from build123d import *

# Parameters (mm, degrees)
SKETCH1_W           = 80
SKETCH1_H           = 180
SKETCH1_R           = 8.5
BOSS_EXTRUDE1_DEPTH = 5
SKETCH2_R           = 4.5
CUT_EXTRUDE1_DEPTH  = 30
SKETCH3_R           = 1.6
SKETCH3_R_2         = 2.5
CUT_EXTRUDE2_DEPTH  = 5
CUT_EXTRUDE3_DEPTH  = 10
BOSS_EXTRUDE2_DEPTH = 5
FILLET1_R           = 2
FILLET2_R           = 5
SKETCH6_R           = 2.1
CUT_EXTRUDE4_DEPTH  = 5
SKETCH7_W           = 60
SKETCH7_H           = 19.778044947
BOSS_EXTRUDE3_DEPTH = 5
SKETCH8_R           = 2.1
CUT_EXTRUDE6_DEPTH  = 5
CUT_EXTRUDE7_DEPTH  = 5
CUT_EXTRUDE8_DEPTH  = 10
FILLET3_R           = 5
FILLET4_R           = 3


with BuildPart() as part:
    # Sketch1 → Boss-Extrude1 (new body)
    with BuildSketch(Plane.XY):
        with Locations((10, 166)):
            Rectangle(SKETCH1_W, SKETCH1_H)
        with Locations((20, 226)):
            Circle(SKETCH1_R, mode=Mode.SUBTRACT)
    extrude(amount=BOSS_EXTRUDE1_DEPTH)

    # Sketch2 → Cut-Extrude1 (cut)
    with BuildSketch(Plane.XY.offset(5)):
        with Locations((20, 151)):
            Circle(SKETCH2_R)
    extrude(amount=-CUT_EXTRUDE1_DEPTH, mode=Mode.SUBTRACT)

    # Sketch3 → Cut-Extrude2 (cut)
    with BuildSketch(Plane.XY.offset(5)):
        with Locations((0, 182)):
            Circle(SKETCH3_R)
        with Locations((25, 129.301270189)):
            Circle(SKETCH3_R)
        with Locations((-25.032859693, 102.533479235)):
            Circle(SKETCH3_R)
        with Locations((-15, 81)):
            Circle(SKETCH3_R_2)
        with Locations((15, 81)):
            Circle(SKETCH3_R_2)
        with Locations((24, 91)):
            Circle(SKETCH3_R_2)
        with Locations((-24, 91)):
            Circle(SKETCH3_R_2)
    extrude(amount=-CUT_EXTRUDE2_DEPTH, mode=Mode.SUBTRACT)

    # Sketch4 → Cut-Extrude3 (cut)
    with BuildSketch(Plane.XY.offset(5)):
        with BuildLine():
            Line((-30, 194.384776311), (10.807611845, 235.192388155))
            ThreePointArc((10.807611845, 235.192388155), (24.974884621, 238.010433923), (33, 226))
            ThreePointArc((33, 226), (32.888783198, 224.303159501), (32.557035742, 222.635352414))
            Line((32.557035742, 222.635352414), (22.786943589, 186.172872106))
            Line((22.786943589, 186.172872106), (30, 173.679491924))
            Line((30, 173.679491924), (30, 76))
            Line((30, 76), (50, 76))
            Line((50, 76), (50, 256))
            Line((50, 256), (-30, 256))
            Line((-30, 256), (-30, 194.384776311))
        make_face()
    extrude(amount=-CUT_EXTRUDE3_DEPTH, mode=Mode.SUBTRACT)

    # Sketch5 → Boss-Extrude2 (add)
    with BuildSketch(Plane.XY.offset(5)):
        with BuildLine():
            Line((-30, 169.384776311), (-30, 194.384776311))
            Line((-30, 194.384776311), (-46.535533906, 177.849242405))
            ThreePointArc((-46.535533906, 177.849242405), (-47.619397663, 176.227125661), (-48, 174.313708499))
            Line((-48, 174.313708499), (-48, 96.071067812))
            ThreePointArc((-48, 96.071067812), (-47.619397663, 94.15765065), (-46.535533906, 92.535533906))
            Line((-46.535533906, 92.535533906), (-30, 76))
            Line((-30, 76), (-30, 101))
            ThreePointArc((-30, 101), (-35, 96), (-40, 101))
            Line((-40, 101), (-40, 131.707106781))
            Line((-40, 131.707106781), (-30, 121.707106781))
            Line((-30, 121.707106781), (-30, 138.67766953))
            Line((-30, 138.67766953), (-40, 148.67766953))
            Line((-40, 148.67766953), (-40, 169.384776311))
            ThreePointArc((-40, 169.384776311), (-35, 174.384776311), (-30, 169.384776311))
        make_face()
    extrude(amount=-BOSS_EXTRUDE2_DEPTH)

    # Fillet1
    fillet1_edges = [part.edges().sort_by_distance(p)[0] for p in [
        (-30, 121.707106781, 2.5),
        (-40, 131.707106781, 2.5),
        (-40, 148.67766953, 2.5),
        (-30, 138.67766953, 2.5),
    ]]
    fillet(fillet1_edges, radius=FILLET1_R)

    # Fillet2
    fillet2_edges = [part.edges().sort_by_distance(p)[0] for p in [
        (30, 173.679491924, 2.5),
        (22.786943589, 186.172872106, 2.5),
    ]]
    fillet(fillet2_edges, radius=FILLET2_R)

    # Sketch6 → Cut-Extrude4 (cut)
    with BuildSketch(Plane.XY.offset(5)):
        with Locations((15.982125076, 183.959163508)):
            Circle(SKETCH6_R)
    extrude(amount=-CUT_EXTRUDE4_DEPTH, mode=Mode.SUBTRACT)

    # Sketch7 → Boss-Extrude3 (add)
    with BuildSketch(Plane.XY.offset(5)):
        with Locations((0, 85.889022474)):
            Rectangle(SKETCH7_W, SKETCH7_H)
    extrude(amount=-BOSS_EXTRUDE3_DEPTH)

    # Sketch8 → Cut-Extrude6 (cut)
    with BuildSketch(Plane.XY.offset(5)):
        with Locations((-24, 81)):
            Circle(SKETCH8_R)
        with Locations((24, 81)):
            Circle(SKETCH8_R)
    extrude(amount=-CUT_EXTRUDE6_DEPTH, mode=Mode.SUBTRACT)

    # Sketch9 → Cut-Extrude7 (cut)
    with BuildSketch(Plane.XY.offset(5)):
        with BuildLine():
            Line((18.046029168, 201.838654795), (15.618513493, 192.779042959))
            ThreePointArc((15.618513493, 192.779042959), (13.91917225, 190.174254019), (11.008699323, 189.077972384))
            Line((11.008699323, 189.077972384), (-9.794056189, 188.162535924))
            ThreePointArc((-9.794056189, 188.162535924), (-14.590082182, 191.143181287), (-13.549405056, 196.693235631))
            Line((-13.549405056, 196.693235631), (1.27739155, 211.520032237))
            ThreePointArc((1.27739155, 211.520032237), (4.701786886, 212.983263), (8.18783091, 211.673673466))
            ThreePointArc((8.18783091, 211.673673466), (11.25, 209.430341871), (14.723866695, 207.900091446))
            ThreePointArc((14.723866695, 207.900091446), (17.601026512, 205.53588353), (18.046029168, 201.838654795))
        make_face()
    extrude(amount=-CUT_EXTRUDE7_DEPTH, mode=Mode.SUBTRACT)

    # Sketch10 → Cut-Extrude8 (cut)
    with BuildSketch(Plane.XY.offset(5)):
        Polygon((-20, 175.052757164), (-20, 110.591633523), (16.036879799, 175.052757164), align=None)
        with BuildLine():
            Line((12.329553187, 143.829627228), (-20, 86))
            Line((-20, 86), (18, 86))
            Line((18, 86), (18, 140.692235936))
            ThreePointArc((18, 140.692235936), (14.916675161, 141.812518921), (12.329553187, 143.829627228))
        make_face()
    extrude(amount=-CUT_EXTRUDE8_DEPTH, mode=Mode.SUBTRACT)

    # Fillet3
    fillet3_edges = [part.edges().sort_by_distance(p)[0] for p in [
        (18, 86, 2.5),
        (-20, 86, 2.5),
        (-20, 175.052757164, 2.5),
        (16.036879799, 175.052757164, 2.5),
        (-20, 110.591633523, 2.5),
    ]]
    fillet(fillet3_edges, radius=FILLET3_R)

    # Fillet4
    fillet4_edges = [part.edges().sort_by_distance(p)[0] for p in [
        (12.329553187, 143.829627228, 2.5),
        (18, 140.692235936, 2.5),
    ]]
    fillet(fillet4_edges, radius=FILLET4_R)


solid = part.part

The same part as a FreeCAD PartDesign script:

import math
import FreeCAD as App
import Part
import Sketcher

V = App.Vector
Q = App.Units.Quantity


def edges_at(feature, points):
    """Names of the edges that pass closest to the given points."""
    edges = feature.Shape.Edges
    near = lambda p: min(range(len(edges)), key=lambda i: edges[i].distToShape(Part.Vertex(*p))[0])
    return sorted({f"Edge{near(p) + 1}" for p in points})

doc = App.newDocument("Part")
params = doc.addObject("Spreadsheet::Sheet", "Params")
for row, (alias, value) in enumerate([
    ("sketch1_diameter", "17 mm"),
    ("sketch1_width", "80 mm"),
    ("sketch1_height", "180 mm"),
    ("pad1_length", "5 mm"),
    ("sketch2_diameter", "9 mm"),
    ("pocket1_length", "30 mm"),
    ("sketch3_diameter", "5 mm"),
    ("sketch3_diameter2", "3.2 mm"),
    ("pocket2_length", "5 mm"),
    ("sketch4_radius", "13 mm"),
    ("sketch4_width", "20 mm"),
    ("sketch4_width2", "80 mm"),
    ("sketch4_height", "180 mm"),
    ("pocket3_length", "10 mm"),
    ("sketch5_radius", "5 mm"),
    ("sketch5_height", "25 mm"),
    ("pad2_length", "5 mm"),
    ("fillet_radius", "2 mm"),
    ("fillet2_radius", "5 mm"),
    ("sketch6_diameter", "4.2 mm"),
    ("pocket4_length", "5 mm"),
    ("sketch7_width", "60 mm"),
    ("pad3_length", "5 mm"),
    ("sketch8_diameter", "4.2 mm"),
    ("pocket5_length", "5 mm"),
    ("sketch9_radius", "5 mm"),
    ("sketch9_radius2", "17.5 mm"),
    ("pocket6_length", "5 mm"),
    ("sketch10_radius", "10.5 mm"),
    ("sketch10_width", "38 mm"),
    ("pocket7_length", "10 mm"),
    ("fillet3_radius", "5 mm"),
    ("fillet4_radius", "3 mm"),
], start=1):
    params.set(f"A{row}", alias)
    params.set(f"B{row}", "=" + value)
    params.setAlias(f"B{row}", alias)

body = doc.addObject("PartDesign::Body", "Body")

# Sketch on XY plane
sketch1 = doc.addObject("Sketcher::SketchObject", "Sketch")
body.addObject(sketch1)
sketch1.AttachmentSupport = (doc.XY_Plane, [""])
sketch1.MapMode = "FlatFace"
sketch1.addGeometry(Part.LineSegment(V(-30, 256, 0), V(-30, 76, 0)), False)
sketch1.addGeometry(Part.LineSegment(V(-30, 76, 0), V(50, 76, 0)), False)
sketch1.addGeometry(Part.LineSegment(V(50, 76, 0), V(50, 256, 0)), False)
sketch1.addGeometry(Part.LineSegment(V(50, 256, 0), V(-30, 256, 0)), False)
sketch1.addGeometry(Part.Circle(V(20, 226, 0), V(0, 0, 1), 8), False)
sketch1.addConstraint(Sketcher.Constraint("Coincident", 0, 2, 1, 1))
sketch1.addConstraint(Sketcher.Constraint("Coincident", 1, 2, 2, 1))
sketch1.addConstraint(Sketcher.Constraint("Coincident", 2, 2, 3, 1))
sketch1.addConstraint(Sketcher.Constraint("Coincident", 3, 2, 0, 1))
sketch1.addConstraint(Sketcher.Constraint("Vertical", 0))
sketch1.addConstraint(Sketcher.Constraint("Horizontal", 1))
sketch1.addConstraint(Sketcher.Constraint("Vertical", 2))
sketch1.addConstraint(Sketcher.Constraint("Horizontal", 3))
sketch1.addConstraint(Sketcher.Constraint("Diameter", 4, 17.0))
sketch1.addConstraint(Sketcher.Constraint("DistanceX", 1, 1, 1, 2, 80.0))
sketch1.addConstraint(Sketcher.Constraint("DistanceY", 0, 2, 0, 1, 180.0))
sketch1.addConstraint(Sketcher.Constraint("DistanceX", -1, 1, 4, 3, 20.0))
sketch1.addConstraint(Sketcher.Constraint("DistanceY", -1, 1, 4, 3, 226.0))
sketch1.addConstraint(Sketcher.Constraint("DistanceX", 0, 2, -1, 1, 30.0))
sketch1.addConstraint(Sketcher.Constraint("DistanceY", -1, 1, 0, 2, 76.0))
sketch1.setExpression("Constraints[8]", "Params.sketch1_diameter")
sketch1.setExpression("Constraints[9]", "Params.sketch1_width")
sketch1.setExpression("Constraints[10]", "Params.sketch1_height")
pad1 = doc.addObject("PartDesign::Pad", "Pad")
body.addObject(pad1)
pad1.Profile = sketch1
pad1.setExpression("Length", "Params.pad1_length")

# Sketch on XY plane
sketch2 = doc.addObject("Sketcher::SketchObject", "Sketch001")
body.addObject(sketch2)
sketch2.AttachmentSupport = (doc.XY_Plane, [""])
sketch2.MapMode = "FlatFace"
sketch2.AttachmentOffset = App.Placement(V(0, 0, 5), App.Rotation())
sketch2.addGeometry(Part.Circle(V(20, 151, 0), V(0, 0, 1), 4.5), False)
sketch2.addConstraint(Sketcher.Constraint("Diameter", 0, 9.0))
sketch2.addConstraint(Sketcher.Constraint("DistanceX", -1, 1, 0, 3, 20.0))
sketch2.addConstraint(Sketcher.Constraint("DistanceY", -1, 1, 0, 3, 151.0))
sketch2.setExpression("Constraints[0]", "Params.sketch2_diameter")
pocket1 = doc.addObject("PartDesign::Pocket", "Pocket")
body.addObject(pocket1)
pocket1.Profile = sketch2
pocket1.setExpression("Length", "Params.pocket1_length")

# Sketch on XY plane
sketch3 = doc.addObject("Sketcher::SketchObject", "Sketch002")
body.addObject(sketch3)
sketch3.AttachmentSupport = (doc.XY_Plane, [""])
sketch3.MapMode = "FlatFace"
sketch3.AttachmentOffset = App.Placement(V(0, 0, 5), App.Rotation())
sketch3.addGeometry(Part.Circle(V(0, 182, 0), V(0, 0, 1), 1.6), False)
sketch3.addGeometry(Part.Circle(V(25, 129.3, 0), V(0, 0, 1), 1.6), False)
sketch3.addGeometry(Part.Circle(V(-25, 102.5, 0), V(0, 0, 1), 1.6), False)
sketch3.addGeometry(Part.Circle(V(-15, 81, 0), V(0, 0, 1), 2.5), False)
sketch3.addGeometry(Part.Circle(V(15, 81, 0), V(0, 0, 1), 2.5), False)
sketch3.addGeometry(Part.Circle(V(24, 91, 0), V(0, 0, 1), 2.5), False)
sketch3.addGeometry(Part.Circle(V(-24, 91, 0), V(0, 0, 1), 2.5), False)
sketch3.addConstraint(Sketcher.Constraint("Equal", 0, 1))
sketch3.addConstraint(Sketcher.Constraint("Equal", 1, 2))
sketch3.addConstraint(Sketcher.Constraint("Equal", 3, 4))
sketch3.addConstraint(Sketcher.Constraint("Equal", 4, 5))
sketch3.addConstraint(Sketcher.Constraint("Equal", 5, 6))
sketch3.addConstraint(Sketcher.Constraint("Symmetric", 3, 3, 4, 3, -2))
sketch3.addConstraint(Sketcher.Constraint("Symmetric", 5, 3, 6, 3, -2))
sketch3.addConstraint(Sketcher.Constraint("PointOnObject", 0, 3, -2))
sketch3.addConstraint(Sketcher.Constraint("Diameter", 3, 5.0))
sketch3.addConstraint(Sketcher.Constraint("Diameter", 0, 3.2))
sketch3.addConstraint(Sketcher.Constraint("DistanceY", -1, 1, 0, 3, 182.0))
sketch3.addConstraint(Sketcher.Constraint("DistanceX", -1, 1, 1, 3, 25.0))
sketch3.addConstraint(Sketcher.Constraint("DistanceX", 3, 3, -1, 1, 15.0))
sketch3.addConstraint(Sketcher.Constraint("DistanceY", -1, 1, 3, 3, 81.0))
sketch3.addConstraint(Sketcher.Constraint("DistanceX", -1, 1, 5, 3, 24.0))
sketch3.addConstraint(Sketcher.Constraint("DistanceY", -1, 1, 5, 3, 91.0))
sketch3.addConstraint(Sketcher.Constraint("DistanceY", -1, 1, 1, 3, 129.30127))
sketch3.addConstraint(Sketcher.Constraint("DistanceX", 2, 3, -1, 1, 25.03286))
sketch3.addConstraint(Sketcher.Constraint("DistanceY", -1, 1, 2, 3, 102.533479))
sketch3.setExpression("Constraints[8]", "Params.sketch3_diameter")
sketch3.setExpression("Constraints[9]", "Params.sketch3_diameter2")
pocket2 = doc.addObject("PartDesign::Pocket", "Pocket001")
body.addObject(pocket2)
pocket2.Profile = sketch3
pocket2.setExpression("Length", "Params.pocket2_length")

# Sketch on XY plane
sketch4 = doc.addObject("Sketcher::SketchObject", "Sketch003")
body.addObject(sketch4)
sketch4.AttachmentSupport = (doc.XY_Plane, [""])
sketch4.MapMode = "FlatFace"
sketch4.AttachmentOffset = App.Placement(V(0, 0, 5), App.Rotation())
sketch4.addGeometry(Part.LineSegment(V(-30, 194.4, 0), V(10.8, 235.2, 0)), False)
sketch4.addGeometry(Part.ArcOfCircle(Part.Circle(V(20, 226, 0), V(0, 0, 1), 13), math.radians(0), math.radians(135)), False)
sketch4.addGeometry(Part.ArcOfCircle(Part.Circle(V(20, 226, 0), V(0, 0, 1), 13), math.radians(-15), math.radians(0)), False)
sketch4.addGeometry(Part.LineSegment(V(32.6, 222.6, 0), V(22.8, 186.2, 0)), False)
sketch4.addGeometry(Part.LineSegment(V(22.8, 186.2, 0), V(30, 173.7, 0)), False)
sketch4.addGeometry(Part.LineSegment(V(30, 173.7, 0), V(30, 76, 0)), False)
sketch4.addGeometry(Part.LineSegment(V(30, 76, 0), V(50, 76, 0)), False)
sketch4.addGeometry(Part.LineSegment(V(50, 76, 0), V(50, 256, 0)), False)
sketch4.addGeometry(Part.LineSegment(V(50, 256, 0), V(-30, 256, 0)), False)
sketch4.addGeometry(Part.LineSegment(V(-30, 256, 0), V(-30, 194.4, 0)), False)
sketch4.addConstraint(Sketcher.Constraint("Tangent", 0, 2, 1, 2))
sketch4.addConstraint(Sketcher.Constraint("Tangent", 1, 1, 2, 2))
sketch4.addConstraint(Sketcher.Constraint("Tangent", 2, 1, 3, 1))
sketch4.addConstraint(Sketcher.Constraint("Coincident", 3, 2, 4, 1))
sketch4.addConstraint(Sketcher.Constraint("Coincident", 4, 2, 5, 1))
sketch4.addConstraint(Sketcher.Constraint("Coincident", 5, 2, 6, 1))
sketch4.addConstraint(Sketcher.Constraint("Coincident", 6, 2, 7, 1))
sketch4.addConstraint(Sketcher.Constraint("Coincident", 7, 2, 8, 1))
sketch4.addConstraint(Sketcher.Constraint("Coincident", 8, 2, 9, 1))
sketch4.addConstraint(Sketcher.Constraint("Coincident", 9, 2, 0, 1))
sketch4.addConstraint(Sketcher.Constraint("Vertical", 5))
sketch4.addConstraint(Sketcher.Constraint("Horizontal", 6))
sketch4.addConstraint(Sketcher.Constraint("Vertical", 7))
sketch4.addConstraint(Sketcher.Constraint("Horizontal", 8))
sketch4.addConstraint(Sketcher.Constraint("Vertical", 9))
sketch4.addConstraint(Sketcher.Constraint("Equal", 1, 2))
sketch4.addConstraint(Sketcher.Constraint("Horizontal", 2, 3, 1, 1))
sketch4.addConstraint(Sketcher.Constraint("Radius", 1, 13.0))
sketch4.addConstraint(Sketcher.Constraint("DistanceX", 6, 1, 6, 2, 20.0))
sketch4.addConstraint(Sketcher.Constraint("DistanceX", 8, 2, 8, 1, 80.0))
sketch4.addConstraint(Sketcher.Constraint("DistanceY", 7, 1, 7, 2, 180.0))
sketch4.addConstraint(Sketcher.Constraint("Angle", 0, Q("45 deg")))
sketch4.addConstraint(Sketcher.Constraint("Angle", 3, Q("-105 deg")))
sketch4.addConstraint(Sketcher.Constraint("Angle", 4, Q("-60 deg")))
sketch4.addConstraint(Sketcher.Constraint("DistanceX", -1, 1, 1, 3, 20.0))
sketch4.addConstraint(Sketcher.Constraint("DistanceY", -1, 1, 1, 3, 226.0))
sketch4.addConstraint(Sketcher.Constraint("DistanceX", -1, 1, 4, 2, 30.0))
sketch4.addConstraint(Sketcher.Constraint("DistanceY", -1, 1, 5, 2, 76.0))
sketch4.addConstraint(Sketcher.Constraint("DistanceY", 5, 2, 5, 1, 97.679492))
sketch4.setExpression("Constraints[17]", "Params.sketch4_radius")
sketch4.setExpression("Constraints[18]", "Params.sketch4_width")
sketch4.setExpression("Constraints[19]", "Params.sketch4_width2")
sketch4.setExpression("Constraints[20]", "Params.sketch4_height")
pocket3 = doc.addObject("PartDesign::Pocket", "Pocket002")
body.addObject(pocket3)
pocket3.Profile = sketch4
pocket3.setExpression("Length", "Params.pocket3_length")

# Sketch on XY plane
sketch5 = doc.addObject("Sketcher::SketchObject", "Sketch004")
body.addObject(sketch5)
sketch5.AttachmentSupport = (doc.XY_Plane, [""])
sketch5.MapMode = "FlatFace"
sketch5.AttachmentOffset = App.Placement(V(0, 0, 5), App.Rotation())
sketch5.addGeometry(Part.LineSegment(V(-30, 169.4, 0), V(-30, 194.4, 0)), False)
sketch5.addGeometry(Part.LineSegment(V(-30, 194.4, 0), V(-46.5, 177.8, 0)), False)
sketch5.addGeometry(Part.ArcOfCircle(Part.Circle(V(-43, 174.3, 0), V(0, 0, 1), 5), math.radians(135), math.radians(180)), False)
sketch5.addGeometry(Part.LineSegment(V(-48, 174.3, 0), V(-48, 96.1, 0)), False)
sketch5.addGeometry(Part.ArcOfCircle(Part.Circle(V(-43, 96.1, 0), V(0, 0, 1), 5), math.radians(180), math.radians(225)), False)
sketch5.addGeometry(Part.LineSegment(V(-46.5, 92.5, 0), V(-30, 76, 0)), False)
sketch5.addGeometry(Part.LineSegment(V(-30, 76, 0), V(-30, 101, 0)), False)
sketch5.addGeometry(Part.ArcOfCircle(Part.Circle(V(-35, 101, 0), V(0, 0, 1), 5), math.radians(180), math.radians(360)), False)
sketch5.addGeometry(Part.LineSegment(V(-40, 101, 0), V(-40, 131.7, 0)), False)
sketch5.addGeometry(Part.LineSegment(V(-40, 131.7, 0), V(-30, 121.7, 0)), False)
sketch5.addGeometry(Part.LineSegment(V(-30, 121.7, 0), V(-30, 138.7, 0)), False)
sketch5.addGeometry(Part.LineSegment(V(-30, 138.7, 0), V(-40, 148.7, 0)), False)
sketch5.addGeometry(Part.LineSegment(V(-40, 148.7, 0), V(-40, 169.4, 0)), False)
sketch5.addGeometry(Part.ArcOfCircle(Part.Circle(V(-35, 169.4, 0), V(0, 0, 1), 5), math.radians(0), math.radians(180)), False)
sketch5.addConstraint(Sketcher.Constraint("Coincident", 0, 2, 1, 1))
sketch5.addConstraint(Sketcher.Constraint("Tangent", 1, 2, 2, 1))
sketch5.addConstraint(Sketcher.Constraint("Tangent", 2, 2, 3, 1))
sketch5.addConstraint(Sketcher.Constraint("Tangent", 3, 2, 4, 1))
sketch5.addConstraint(Sketcher.Constraint("Tangent", 4, 2, 5, 1))
sketch5.addConstraint(Sketcher.Constraint("Coincident", 5, 2, 6, 1))
sketch5.addConstraint(Sketcher.Constraint("Tangent", 6, 2, 7, 2))
sketch5.addConstraint(Sketcher.Constraint("Tangent", 7, 1, 8, 1))
sketch5.addConstraint(Sketcher.Constraint("Coincident", 8, 2, 9, 1))
sketch5.addConstraint(Sketcher.Constraint("Coincident", 9, 2, 10, 1))
sketch5.addConstraint(Sketcher.Constraint("Coincident", 10, 2, 11, 1))
sketch5.addConstraint(Sketcher.Constraint("Coincident", 11, 2, 12, 1))
sketch5.addConstraint(Sketcher.Constraint("Tangent", 12, 2, 13, 2))
sketch5.addConstraint(Sketcher.Constraint("Tangent", 13, 1, 0, 1))
sketch5.addConstraint(Sketcher.Constraint("Vertical", 0))
sketch5.addConstraint(Sketcher.Constraint("Vertical", 3))
sketch5.addConstraint(Sketcher.Constraint("Vertical", 6))
sketch5.addConstraint(Sketcher.Constraint("Vertical", 8))
sketch5.addConstraint(Sketcher.Constraint("Vertical", 10))
sketch5.addConstraint(Sketcher.Constraint("Vertical", 12))
sketch5.addConstraint(Sketcher.Constraint("Equal", 2, 4))
sketch5.addConstraint(Sketcher.Constraint("Equal", 4, 7))
sketch5.addConstraint(Sketcher.Constraint("Equal", 7, 13))
sketch5.addConstraint(Sketcher.Constraint("Perpendicular", 1, 5))
sketch5.addConstraint(Sketcher.Constraint("Parallel", 5, 9))
sketch5.addConstraint(Sketcher.Constraint("Parallel", 9, 11))
sketch5.addConstraint(Sketcher.Constraint("Vertical", 7, 3, 13, 3))
sketch5.addConstraint(Sketcher.Constraint("Vertical", 1, 2, 4, 2))
sketch5.addConstraint(Sketcher.Constraint("Vertical", 6, 2, 9, 2))
sketch5.addConstraint(Sketcher.Constraint("Equal", 0, 6))
sketch5.addConstraint(Sketcher.Constraint("Radius", 2, 5.0))
sketch5.addConstraint(Sketcher.Constraint("DistanceY", 0, 1, 0, 2, 25.0))
sketch5.addConstraint(Sketcher.Constraint("DistanceX", 2, 3, -1, 1, 43.0))
sketch5.addConstraint(Sketcher.Constraint("DistanceX", 7, 3, -1, 1, 35.0))
sketch5.addConstraint(Sketcher.Constraint("DistanceY", -1, 1, 7, 3, 101.0))
sketch5.addConstraint(Sketcher.Constraint("DistanceY", 3, 2, 3, 1, 78.242641))
sketch5.addConstraint(Sketcher.Constraint("DistanceY", 8, 1, 8, 2, 30.707107))
sketch5.addConstraint(Sketcher.Constraint("DistanceY", 10, 1, 10, 2, 16.970563))
sketch5.setExpression("Constraints[30]", "Params.sketch5_radius")
sketch5.setExpression("Constraints[31]", "Params.sketch5_height")
pad2 = doc.addObject("PartDesign::Pad", "Pad001")
body.addObject(pad2)
pad2.Profile = sketch5
pad2.setExpression("Length", "Params.pad2_length")
pad2.Reversed = True
doc.recompute()

fillet = doc.addObject("PartDesign::Fillet", "Fillet")
body.addObject(fillet)
fillet.Base = (pad2, edges_at(pad2, [
    (-30, 121.707, 2.5),
    (-40, 131.707, 2.5),
    (-40, 148.678, 2.5),
    (-30, 138.678, 2.5),
]))
fillet.setExpression("Radius", "Params.fillet_radius")
doc.recompute()

fillet2 = doc.addObject("PartDesign::Fillet", "Fillet001")
body.addObject(fillet2)
fillet2.Base = (fillet, edges_at(fillet, [(30, 173.679, 2.5), (22.787, 186.173, 2.5)]))
fillet2.setExpression("Radius", "Params.fillet2_radius")

# Sketch on XY plane
sketch6 = doc.addObject("Sketcher::SketchObject", "Sketch005")
body.addObject(sketch6)
sketch6.AttachmentSupport = (doc.XY_Plane, [""])
sketch6.MapMode = "FlatFace"
sketch6.AttachmentOffset = App.Placement(V(0, 0, 5), App.Rotation())
sketch6.addGeometry(Part.Circle(V(16, 184, 0), V(0, 0, 1), 2.1), False)
sketch6.addConstraint(Sketcher.Constraint("Diameter", 0, 4.2))
sketch6.addConstraint(Sketcher.Constraint("DistanceX", -1, 1, 0, 3, 15.982125))
sketch6.addConstraint(Sketcher.Constraint("DistanceY", -1, 1, 0, 3, 183.959164))
sketch6.setExpression("Constraints[0]", "Params.sketch6_diameter")
pocket4 = doc.addObject("PartDesign::Pocket", "Pocket003")
body.addObject(pocket4)
pocket4.Profile = sketch6
pocket4.setExpression("Length", "Params.pocket4_length")

# Sketch on XY plane
sketch7 = doc.addObject("Sketcher::SketchObject", "Sketch006")
body.addObject(sketch7)
sketch7.AttachmentSupport = (doc.XY_Plane, [""])
sketch7.MapMode = "FlatFace"
sketch7.AttachmentOffset = App.Placement(V(0, 0, 5), App.Rotation())
sketch7.addGeometry(Part.LineSegment(V(-30, 96, 0), V(-30, 76, 0)), False)
sketch7.addGeometry(Part.LineSegment(V(-30, 76, 0), V(30, 76, 0)), False)
sketch7.addGeometry(Part.LineSegment(V(30, 76, 0), V(30, 96, 0)), False)
sketch7.addGeometry(Part.LineSegment(V(30, 96, 0), V(-30, 96, 0)), False)
sketch7.addConstraint(Sketcher.Constraint("Coincident", 0, 2, 1, 1))
sketch7.addConstraint(Sketcher.Constraint("Coincident", 1, 2, 2, 1))
sketch7.addConstraint(Sketcher.Constraint("Coincident", 2, 2, 3, 1))
sketch7.addConstraint(Sketcher.Constraint("Coincident", 3, 2, 0, 1))
sketch7.addConstraint(Sketcher.Constraint("Vertical", 0))
sketch7.addConstraint(Sketcher.Constraint("Horizontal", 1))
sketch7.addConstraint(Sketcher.Constraint("Vertical", 2))
sketch7.addConstraint(Sketcher.Constraint("Horizontal", 3))
sketch7.addConstraint(Sketcher.Constraint("DistanceX", 1, 1, 1, 2, 60.0))
sketch7.addConstraint(Sketcher.Constraint("DistanceX", 0, 2, -1, 1, 30.0))
sketch7.addConstraint(Sketcher.Constraint("DistanceY", -1, 1, 0, 2, 76.0))
sketch7.addConstraint(Sketcher.Constraint("DistanceY", 0, 2, 0, 1, 19.778045))
sketch7.setExpression("Constraints[8]", "Params.sketch7_width")
pad3 = doc.addObject("PartDesign::Pad", "Pad002")
body.addObject(pad3)
pad3.Profile = sketch7
pad3.setExpression("Length", "Params.pad3_length")
pad3.Reversed = True

# Sketch on XY plane
sketch8 = doc.addObject("Sketcher::SketchObject", "Sketch007")
body.addObject(sketch8)
sketch8.AttachmentSupport = (doc.XY_Plane, [""])
sketch8.MapMode = "FlatFace"
sketch8.AttachmentOffset = App.Placement(V(0, 0, 5), App.Rotation())
sketch8.addGeometry(Part.Circle(V(-24, 81, 0), V(0, 0, 1), 2.1), False)
sketch8.addGeometry(Part.Circle(V(24, 81, 0), V(0, 0, 1), 2.1), False)
sketch8.addConstraint(Sketcher.Constraint("Equal", 0, 1))
sketch8.addConstraint(Sketcher.Constraint("Symmetric", 0, 3, 1, 3, -2))
sketch8.addConstraint(Sketcher.Constraint("Diameter", 0, 4.2))
sketch8.addConstraint(Sketcher.Constraint("DistanceX", 0, 3, -1, 1, 24.0))
sketch8.addConstraint(Sketcher.Constraint("DistanceY", -1, 1, 0, 3, 81.0))
sketch8.setExpression("Constraints[2]", "Params.sketch8_diameter")
pocket5 = doc.addObject("PartDesign::Pocket", "Pocket004")
body.addObject(pocket5)
pocket5.Profile = sketch8
pocket5.setExpression("Length", "Params.pocket5_length")

# Sketch on XY plane
sketch9 = doc.addObject("Sketcher::SketchObject", "Sketch008")
body.addObject(sketch9)
sketch9.AttachmentSupport = (doc.XY_Plane, [""])
sketch9.MapMode = "FlatFace"
sketch9.AttachmentOffset = App.Placement(V(0, 0, 5), App.Rotation())
sketch9.addGeometry(Part.LineSegment(V(15.6, 192.8, 0), V(18, 201.8, 0)), False)
sketch9.addGeometry(Part.ArcOfCircle(Part.Circle(V(13.2, 203.1, 0), V(0, 0, 1), 5), math.radians(-15), math.radians(72)), False)
sketch9.addGeometry(Part.ArcOfCircle(Part.Circle(V(20, 224.6, 0), V(0, 0, 1), 17.5), math.radians(-132), math.radians(-108)), False)
sketch9.addGeometry(Part.ArcOfCircle(Part.Circle(V(4.8, 208, 0), V(0, 0, 1), 5), math.radians(48), math.radians(135)), False)
sketch9.addGeometry(Part.LineSegment(V(1.3, 211.5, 0), V(-13.5, 196.7, 0)), False)
sketch9.addGeometry(Part.ArcOfCircle(Part.Circle(V(-10, 193.2, 0), V(0, 0, 1), 5), math.radians(135), math.radians(273)), False)
sketch9.addGeometry(Part.LineSegment(V(-9.8, 188.2, 0), V(11, 189.1, 0)), False)
sketch9.addGeometry(Part.ArcOfCircle(Part.Circle(V(10.8, 194.1, 0), V(0, 0, 1), 5), math.radians(-87), math.radians(-15)), False)
sketch9.addConstraint(Sketcher.Constraint("Tangent", 0, 2, 1, 1))
sketch9.addConstraint(Sketcher.Constraint("Tangent", 1, 2, 2, 2))
sketch9.addConstraint(Sketcher.Constraint("Tangent", 2, 1, 3, 1))
sketch9.addConstraint(Sketcher.Constraint("Tangent", 3, 2, 4, 1))
sketch9.addConstraint(Sketcher.Constraint("Tangent", 4, 2, 5, 1))
sketch9.addConstraint(Sketcher.Constraint("Tangent", 5, 2, 6, 1))
sketch9.addConstraint(Sketcher.Constraint("Tangent", 6, 2, 7, 1))
sketch9.addConstraint(Sketcher.Constraint("Tangent", 7, 2, 0, 1))
sketch9.addConstraint(Sketcher.Constraint("Equal", 1, 3))
sketch9.addConstraint(Sketcher.Constraint("Equal", 3, 5))
sketch9.addConstraint(Sketcher.Constraint("Equal", 5, 7))
sketch9.addConstraint(Sketcher.Constraint("Radius", 1, 5.0))
sketch9.addConstraint(Sketcher.Constraint("Radius", 2, 17.5))
sketch9.addConstraint(Sketcher.Constraint("Angle", 0, Q("75 deg")))
sketch9.addConstraint(Sketcher.Constraint("Angle", 4, Q("-135 deg")))
sketch9.addConstraint(Sketcher.Constraint("DistanceX", -1, 1, 2, 3, 20.0))
sketch9.addConstraint(Sketcher.Constraint("Distance", 0, 9.3792))
sketch9.addConstraint(Sketcher.Constraint("DistanceX", -1, 1, 1, 3, 13.2164))
sketch9.addConstraint(Sketcher.Constraint("DistanceY", -1, 1, 3, 3, 207.984498))
sketch9.addConstraint(Sketcher.Constraint("DistanceY", -1, 1, 5, 3, 193.157702))
sketch9.addConstraint(Sketcher.Constraint("DistanceX", -1, 1, 6, 2, 11.008699))
sketch9.setExpression("Constraints[11]", "Params.sketch9_radius")
sketch9.setExpression("Constraints[12]", "Params.sketch9_radius2")
pocket6 = doc.addObject("PartDesign::Pocket", "Pocket005")
body.addObject(pocket6)
pocket6.Profile = sketch9
pocket6.setExpression("Length", "Params.pocket6_length")

# Sketch on XY plane
sketch10 = doc.addObject("Sketcher::SketchObject", "Sketch009")
body.addObject(sketch10)
sketch10.AttachmentSupport = (doc.XY_Plane, [""])
sketch10.MapMode = "FlatFace"
sketch10.AttachmentOffset = App.Placement(V(0, 0, 5), App.Rotation())
sketch10.addGeometry(Part.LineSegment(V(-20, 175, 0), V(-20, 111, 0)), False)
sketch10.addGeometry(Part.LineSegment(V(-20, 111, 0), V(16, 175, 0)), False)
sketch10.addGeometry(Part.LineSegment(V(16, 175, 0), V(-20, 175, 0)), False)
sketch10.addGeometry(Part.LineSegment(V(12, 144, 0), V(-20, 86, 0)), False)
sketch10.addGeometry(Part.LineSegment(V(-20, 86, 0), V(18, 86, 0)), False)
sketch10.addGeometry(Part.LineSegment(V(18, 86, 0), V(18, 141, 0)), False)
sketch10.addGeometry(Part.ArcOfCircle(Part.Circle(V(20, 151, 0), V(0, 0, 1), 11), math.radians(-137), math.radians(-101)), False)
sketch10.addConstraint(Sketcher.Constraint("Coincident", 0, 2, 1, 1))
sketch10.addConstraint(Sketcher.Constraint("Coincident", 1, 2, 2, 1))
sketch10.addConstraint(Sketcher.Constraint("Coincident", 2, 2, 0, 1))
sketch10.addConstraint(Sketcher.Constraint("Coincident", 3, 2, 4, 1))
sketch10.addConstraint(Sketcher.Constraint("Coincident", 4, 2, 5, 1))
sketch10.addConstraint(Sketcher.Constraint("Coincident", 5, 2, 6, 2))
sketch10.addConstraint(Sketcher.Constraint("Coincident", 6, 1, 3, 1))
sketch10.addConstraint(Sketcher.Constraint("Vertical", 0))
sketch10.addConstraint(Sketcher.Constraint("Horizontal", 2))
sketch10.addConstraint(Sketcher.Constraint("Horizontal", 4))
sketch10.addConstraint(Sketcher.Constraint("Vertical", 5))
sketch10.addConstraint(Sketcher.Constraint("Parallel", 1, 3))
sketch10.addConstraint(Sketcher.Constraint("Vertical", 2, 2, 3, 2))
sketch10.addConstraint(Sketcher.Constraint("Radius", 6, 10.5))
sketch10.addConstraint(Sketcher.Constraint("DistanceX", 4, 1, 4, 2, 38.0))
sketch10.addConstraint(Sketcher.Constraint("DistanceX", -1, 1, 6, 3, 20.0))
sketch10.addConstraint(Sketcher.Constraint("DistanceY", -1, 1, 6, 3, 151.0))
sketch10.addConstraint(Sketcher.Constraint("DistanceX", 0, 2, -1, 1, 20.0))
sketch10.addConstraint(Sketcher.Constraint("DistanceY", -1, 1, 3, 2, 86.0))
sketch10.addConstraint(Sketcher.Constraint("DistanceX", 2, 2, 2, 1, 36.03688))
sketch10.addConstraint(Sketcher.Constraint("Distance", 1, 73.850478))
sketch10.addConstraint(Sketcher.Constraint("DistanceY", 5, 2, 1, 2, 34.360521))
sketch10.setExpression("Constraints[13]", "Params.sketch10_radius")
sketch10.setExpression("Constraints[14]", "Params.sketch10_width")
pocket7 = doc.addObject("PartDesign::Pocket", "Pocket006")
body.addObject(pocket7)
pocket7.Profile = sketch10
pocket7.setExpression("Length", "Params.pocket7_length")
doc.recompute()

fillet3 = doc.addObject("PartDesign::Fillet", "Fillet002")
body.addObject(fillet3)
fillet3.Base = (pocket7, edges_at(pocket7, [
    (18, 86, 2.5),
    (-20, 86, 2.5),
    (-20, 175.053, 2.5),
    (16.037, 175.053, 2.5),
    (-20, 110.592, 2.5),
]))
fillet3.setExpression("Radius", "Params.fillet3_radius")
doc.recompute()

fillet4 = doc.addObject("PartDesign::Fillet", "Fillet003")
body.addObject(fillet4)
fillet4.Base = (fillet3, edges_at(fillet3, [(12.33, 143.83, 2.5), (18, 140.692, 2.5)]))
fillet4.setExpression("Radius", "Params.fillet4_radius")

doc.recompute()
